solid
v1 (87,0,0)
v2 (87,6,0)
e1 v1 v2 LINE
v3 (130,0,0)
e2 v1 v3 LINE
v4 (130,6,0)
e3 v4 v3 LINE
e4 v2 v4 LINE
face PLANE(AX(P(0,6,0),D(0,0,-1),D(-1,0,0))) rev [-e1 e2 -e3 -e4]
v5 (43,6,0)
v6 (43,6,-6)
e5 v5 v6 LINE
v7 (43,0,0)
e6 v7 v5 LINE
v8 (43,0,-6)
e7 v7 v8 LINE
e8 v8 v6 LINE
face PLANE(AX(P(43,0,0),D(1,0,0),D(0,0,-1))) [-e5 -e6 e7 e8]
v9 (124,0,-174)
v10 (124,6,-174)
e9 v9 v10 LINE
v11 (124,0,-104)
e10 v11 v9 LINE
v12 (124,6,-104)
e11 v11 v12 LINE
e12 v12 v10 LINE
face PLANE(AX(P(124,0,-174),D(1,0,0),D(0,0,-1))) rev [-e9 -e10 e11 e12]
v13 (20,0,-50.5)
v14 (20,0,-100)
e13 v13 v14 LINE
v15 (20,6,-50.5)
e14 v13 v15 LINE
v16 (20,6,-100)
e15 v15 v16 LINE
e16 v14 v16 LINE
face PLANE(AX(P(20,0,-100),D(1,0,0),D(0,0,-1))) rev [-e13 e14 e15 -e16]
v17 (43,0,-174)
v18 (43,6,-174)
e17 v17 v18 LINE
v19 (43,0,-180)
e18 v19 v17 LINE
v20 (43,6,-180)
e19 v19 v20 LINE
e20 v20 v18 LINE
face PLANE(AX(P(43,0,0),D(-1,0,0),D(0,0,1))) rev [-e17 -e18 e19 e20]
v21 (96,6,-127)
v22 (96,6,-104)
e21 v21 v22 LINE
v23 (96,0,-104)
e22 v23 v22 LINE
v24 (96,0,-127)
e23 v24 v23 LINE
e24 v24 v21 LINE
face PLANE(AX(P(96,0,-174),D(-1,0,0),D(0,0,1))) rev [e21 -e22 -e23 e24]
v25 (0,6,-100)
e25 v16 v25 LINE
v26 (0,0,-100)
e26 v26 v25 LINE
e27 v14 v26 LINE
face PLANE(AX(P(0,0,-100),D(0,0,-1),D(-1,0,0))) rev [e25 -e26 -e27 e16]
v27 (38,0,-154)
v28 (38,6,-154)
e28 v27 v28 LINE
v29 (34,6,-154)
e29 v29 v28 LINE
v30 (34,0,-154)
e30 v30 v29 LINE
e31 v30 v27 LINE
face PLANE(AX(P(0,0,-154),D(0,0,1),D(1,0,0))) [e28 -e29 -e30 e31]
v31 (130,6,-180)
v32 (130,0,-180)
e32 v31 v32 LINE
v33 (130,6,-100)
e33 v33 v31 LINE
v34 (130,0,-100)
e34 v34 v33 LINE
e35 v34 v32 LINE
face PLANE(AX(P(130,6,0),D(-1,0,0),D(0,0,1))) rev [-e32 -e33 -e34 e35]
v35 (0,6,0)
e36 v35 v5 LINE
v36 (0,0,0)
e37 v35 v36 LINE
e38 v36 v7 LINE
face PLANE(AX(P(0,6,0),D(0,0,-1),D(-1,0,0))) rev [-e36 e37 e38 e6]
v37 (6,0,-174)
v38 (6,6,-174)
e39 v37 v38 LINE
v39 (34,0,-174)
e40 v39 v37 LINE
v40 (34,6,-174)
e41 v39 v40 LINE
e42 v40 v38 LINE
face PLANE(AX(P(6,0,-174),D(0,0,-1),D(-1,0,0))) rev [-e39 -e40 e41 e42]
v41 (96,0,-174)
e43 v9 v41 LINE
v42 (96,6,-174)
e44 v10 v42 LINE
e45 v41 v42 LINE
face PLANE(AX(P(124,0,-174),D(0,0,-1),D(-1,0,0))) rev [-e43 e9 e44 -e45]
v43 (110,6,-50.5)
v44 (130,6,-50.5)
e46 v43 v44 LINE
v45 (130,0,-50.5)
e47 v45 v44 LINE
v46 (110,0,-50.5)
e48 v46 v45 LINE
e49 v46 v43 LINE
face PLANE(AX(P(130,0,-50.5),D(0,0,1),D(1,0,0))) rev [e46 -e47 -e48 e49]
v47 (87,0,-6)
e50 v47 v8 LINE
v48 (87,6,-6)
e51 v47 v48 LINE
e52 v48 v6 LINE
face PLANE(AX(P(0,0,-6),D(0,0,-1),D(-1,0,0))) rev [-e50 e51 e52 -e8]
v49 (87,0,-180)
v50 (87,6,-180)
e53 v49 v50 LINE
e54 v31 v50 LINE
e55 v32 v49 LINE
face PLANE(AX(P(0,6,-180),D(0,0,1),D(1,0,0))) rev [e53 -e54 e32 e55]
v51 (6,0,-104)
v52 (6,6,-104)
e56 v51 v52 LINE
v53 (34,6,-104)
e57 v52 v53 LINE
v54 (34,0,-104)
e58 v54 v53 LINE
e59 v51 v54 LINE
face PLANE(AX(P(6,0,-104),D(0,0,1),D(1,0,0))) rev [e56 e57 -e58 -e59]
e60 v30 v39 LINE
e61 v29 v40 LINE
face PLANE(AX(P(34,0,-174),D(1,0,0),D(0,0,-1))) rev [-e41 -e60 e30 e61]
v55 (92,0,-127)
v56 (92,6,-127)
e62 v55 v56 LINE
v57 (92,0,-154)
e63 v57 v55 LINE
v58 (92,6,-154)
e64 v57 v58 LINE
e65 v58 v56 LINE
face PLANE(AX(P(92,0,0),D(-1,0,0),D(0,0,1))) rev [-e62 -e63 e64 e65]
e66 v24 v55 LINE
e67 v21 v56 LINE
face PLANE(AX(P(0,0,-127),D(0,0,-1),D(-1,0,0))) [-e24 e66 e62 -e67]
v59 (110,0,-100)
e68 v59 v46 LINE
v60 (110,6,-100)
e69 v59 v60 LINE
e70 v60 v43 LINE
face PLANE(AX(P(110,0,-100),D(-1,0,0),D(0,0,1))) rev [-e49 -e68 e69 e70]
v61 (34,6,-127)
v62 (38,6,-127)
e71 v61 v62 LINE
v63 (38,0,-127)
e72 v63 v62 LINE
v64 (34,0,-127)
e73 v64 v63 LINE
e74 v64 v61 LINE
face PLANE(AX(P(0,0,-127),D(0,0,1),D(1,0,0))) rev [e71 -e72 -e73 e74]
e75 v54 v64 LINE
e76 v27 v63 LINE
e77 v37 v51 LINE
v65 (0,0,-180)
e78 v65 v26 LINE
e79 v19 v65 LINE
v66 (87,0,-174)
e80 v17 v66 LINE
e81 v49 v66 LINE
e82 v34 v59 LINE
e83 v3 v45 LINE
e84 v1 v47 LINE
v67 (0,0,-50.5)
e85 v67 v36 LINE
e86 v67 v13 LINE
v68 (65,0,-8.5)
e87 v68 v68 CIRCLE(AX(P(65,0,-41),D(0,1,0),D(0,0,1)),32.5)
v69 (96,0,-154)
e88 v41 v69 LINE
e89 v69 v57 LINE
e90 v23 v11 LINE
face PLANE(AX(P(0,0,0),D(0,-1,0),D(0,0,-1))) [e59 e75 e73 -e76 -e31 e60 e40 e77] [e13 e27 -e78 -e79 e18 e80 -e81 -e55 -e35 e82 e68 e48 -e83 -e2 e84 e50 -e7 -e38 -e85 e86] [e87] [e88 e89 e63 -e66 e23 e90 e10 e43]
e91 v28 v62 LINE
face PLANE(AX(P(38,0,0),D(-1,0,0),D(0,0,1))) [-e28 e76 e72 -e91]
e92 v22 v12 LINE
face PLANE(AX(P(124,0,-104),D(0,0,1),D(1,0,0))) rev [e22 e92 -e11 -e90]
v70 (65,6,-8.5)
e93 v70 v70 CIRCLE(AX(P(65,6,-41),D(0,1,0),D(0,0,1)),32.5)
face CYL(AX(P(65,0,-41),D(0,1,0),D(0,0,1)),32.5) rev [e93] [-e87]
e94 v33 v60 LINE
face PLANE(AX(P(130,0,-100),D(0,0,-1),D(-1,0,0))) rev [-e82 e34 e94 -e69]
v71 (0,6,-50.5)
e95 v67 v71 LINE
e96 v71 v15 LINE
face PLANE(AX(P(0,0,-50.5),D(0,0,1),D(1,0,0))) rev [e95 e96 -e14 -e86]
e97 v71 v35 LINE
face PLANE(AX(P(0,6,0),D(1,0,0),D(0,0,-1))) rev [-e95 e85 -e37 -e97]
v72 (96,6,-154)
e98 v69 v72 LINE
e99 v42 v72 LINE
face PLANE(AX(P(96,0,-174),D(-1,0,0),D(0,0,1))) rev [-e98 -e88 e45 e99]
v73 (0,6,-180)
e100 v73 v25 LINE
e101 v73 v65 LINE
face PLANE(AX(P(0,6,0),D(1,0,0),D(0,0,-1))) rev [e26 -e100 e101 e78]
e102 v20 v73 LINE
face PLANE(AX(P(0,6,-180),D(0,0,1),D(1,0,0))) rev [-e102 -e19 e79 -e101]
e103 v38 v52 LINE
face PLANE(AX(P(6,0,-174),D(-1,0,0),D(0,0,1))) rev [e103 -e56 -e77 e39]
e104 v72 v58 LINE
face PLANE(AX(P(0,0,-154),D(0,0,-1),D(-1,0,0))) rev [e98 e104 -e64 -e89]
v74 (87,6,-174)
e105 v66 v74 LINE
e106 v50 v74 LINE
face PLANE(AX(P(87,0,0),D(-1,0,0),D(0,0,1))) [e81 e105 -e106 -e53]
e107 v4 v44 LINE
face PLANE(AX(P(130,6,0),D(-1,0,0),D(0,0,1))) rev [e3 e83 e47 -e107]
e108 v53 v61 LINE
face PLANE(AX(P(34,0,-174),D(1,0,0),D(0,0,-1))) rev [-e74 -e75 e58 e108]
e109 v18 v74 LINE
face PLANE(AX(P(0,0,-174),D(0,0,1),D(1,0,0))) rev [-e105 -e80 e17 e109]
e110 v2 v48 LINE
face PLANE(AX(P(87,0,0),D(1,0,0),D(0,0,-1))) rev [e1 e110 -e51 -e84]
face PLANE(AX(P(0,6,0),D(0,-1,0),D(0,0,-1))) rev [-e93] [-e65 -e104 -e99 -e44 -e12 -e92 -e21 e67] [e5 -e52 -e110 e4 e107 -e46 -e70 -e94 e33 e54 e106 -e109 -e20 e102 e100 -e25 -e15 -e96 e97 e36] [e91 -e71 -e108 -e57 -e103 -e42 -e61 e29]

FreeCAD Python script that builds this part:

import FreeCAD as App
import Part
import Sketcher

V = App.Vector
Q = App.Units.Quantity

doc = App.newDocument("Part")
params = doc.addObject("Spreadsheet::Sheet", "Params")
for row, (alias, value) in enumerate([
    ("sketch1_width", "130 mm"),
    ("sketch1_height", "180 mm"),
    ("pad1_length", "6 mm"),
    ("sketch2_diameter", "65 mm"),
    ("sketch2_width", "28 mm"),
    ("sketch2_height", "70 mm"),
    ("pocket1_length", "6 mm"),
    ("sketch3_width", "20 mm"),
    ("sketch3_height", "49.5 mm"),
    ("sketch4_width", "44 mm"),
    ("sketch4_width2", "4 mm"),
    ("sketch4_height", "6 mm"),
    ("sketch4_height2", "27 mm"),
], start=1):
    params.set(f"A{row}", alias)
    params.set(f"B{row}", "=" + value)
    params.setAlias(f"B{row}", alias)

body = doc.addObject("PartDesign::Body", "Body")

sketch1 = doc.addObject("Sketcher::SketchObject", "Sketch")
body.addObject(sketch1)
sketch1.AttachmentSupport = (doc.XZ_Plane, [""])
sketch1.MapMode = "FlatFace"
sketch1.addGeometry([
    Part.LineSegment(V(0, -180, 0), V(0, 0, 0)),
    Part.LineSegment(V(0, 0, 0), V(130, 0, 0)),
    Part.LineSegment(V(130, 0, 0), V(130, -180, 0)),
    Part.LineSegment(V(130, -180, 0), V(0, -180, 0)),
], False)
sketch1.addConstraint([
    Sketcher.Constraint("Coincident", 0, 2, 1, 1),
    Sketcher.Constraint("Coincident", 1, 2, 2, 1),
    Sketcher.Constraint("Coincident", 2, 2, 3, 1),
    Sketcher.Constraint("Coincident", 3, 2, 0, 1),
    Sketcher.Constraint("Vertical", 0),
    Sketcher.Constraint("Horizontal", 1),
    Sketcher.Constraint("Vertical", 2),
    Sketcher.Constraint("Horizontal", 3),
    Sketcher.Constraint("Coincident", 0, 2, -1, 1),
    Sketcher.Constraint("DistanceX", 1, 1, 1, 2, Q("130 mm")),
    Sketcher.Constraint("DistanceY", 0, 1, 0, 2, Q("180 mm")),
])
sketch1.setExpression("Constraints[9]", "Params.sketch1_width")
sketch1.setExpression("Constraints[10]", "Params.sketch1_height")
pad1 = doc.addObject("PartDesign::Pad", "Pad")
body.addObject(pad1)
pad1.Profile = sketch1
pad1.setExpression("Length", "Params.pad1_length")
pad1.Reversed = True

sketch2 = doc.addObject("Sketcher::SketchObject", "Sketch001")
body.addObject(sketch2)
sketch2.AttachmentSupport = (doc.XZ_Plane, [""])
sketch2.MapMode = "FlatFace"
sketch2.AttachmentOffset = App.Placement(V(0, 0, -6), App.Rotation())
sketch2.addGeometry([
    Part.Circle(V(65, -41, 0), V(0, 0, 1), 32.5),
    Part.LineSegment(V(6, -174, 0), V(6, -104, 0)),
    Part.LineSegment(V(6, -104, 0), V(34, -104, 0)),
    Part.LineSegment(V(34, -104, 0), V(34, -174, 0)),
    Part.LineSegment(V(34, -174, 0), V(6, -174, 0)),
    Part.LineSegment(V(96, -174, 0), V(96, -104, 0)),
    Part.LineSegment(V(96, -104, 0), V(124, -104, 0)),
    Part.LineSegment(V(124, -104, 0), V(124, -174, 0)),
    Part.LineSegment(V(124, -174, 0), V(96, -174, 0)),
], False)
sketch2.addConstraint([
    Sketcher.Constraint("Coincident", 1, 2, 2, 1),
    Sketcher.Constraint("Coincident", 2, 2, 3, 1),
    Sketcher.Constraint("Coincident", 3, 2, 4, 1),
    Sketcher.Constraint("Coincident", 4, 2, 1, 1),
    Sketcher.Constraint("Coincident", 5, 2, 6, 1),
    Sketcher.Constraint("Coincident", 6, 2, 7, 1),
    Sketcher.Constraint("Coincident", 7, 2, 8, 1),
    Sketcher.Constraint("Coincident", 8, 2, 5, 1),
    Sketcher.Constraint("Vertical", 1),
    Sketcher.Constraint("Horizontal", 2),
    Sketcher.Constraint("Vertical", 3),
    Sketcher.Constraint("Horizontal", 4),
    Sketcher.Constraint("Vertical", 5),
    Sketcher.Constraint("Horizontal", 6),
    Sketcher.Constraint("Vertical", 7),
    Sketcher.Constraint("Horizontal", 8),
    Sketcher.Constraint("Horizontal", 2, 2, 5, 2),
    Sketcher.Constraint("Horizontal", 4, 2, 7, 2),
    Sketcher.Constraint("Equal", 4, 6),
    Sketcher.Constraint("Diameter", 0, Q("65 mm")),
    Sketcher.Constraint("DistanceX", 2, 1, 2, 2, Q("28 mm")),
    Sketcher.Constraint("DistanceY", 1, 1, 1, 2, Q("70 mm")),
    Sketcher.Constraint("DistanceX", -1, 1, 0, 3, Q("65 mm")),
    Sketcher.Constraint("DistanceY", 0, 3, -1, 1, Q("41 mm")),
    Sketcher.Constraint("DistanceX", -1, 1, 1, 2, Q("6 mm")),
    Sketcher.Constraint("DistanceY", 1, 2, -1, 1, Q("104 mm")),
    Sketcher.Constraint("DistanceX", -1, 1, 5, 2, Q("96 mm")),
])
sketch2.setExpression("Constraints[19]", "Params.sketch2_diameter")
sketch2.setExpression("Constraints[20]", "Params.sketch2_width")
sketch2.setExpression("Constraints[21]", "Params.sketch2_height")
pocket1 = doc.addObject("PartDesign::Pocket", "Pocket")
body.addObject(pocket1)
pocket1.Profile = sketch2
pocket1.setExpression("Length", "Params.pocket1_length")
pocket1.Reversed = True

sketch3 = doc.addObject("Sketcher::SketchObject", "Sketch002")
body.addObject(sketch3)
sketch3.AttachmentSupport = (doc.XZ_Plane, [""])
sketch3.MapMode = "FlatFace"
sketch3.AttachmentOffset = App.Placement(V(0, 0, -6), App.Rotation())
sketch3.addGeometry([
    Part.LineSegment(V(110, -100, 0), V(110, -50.5, 0)),
    Part.LineSegment(V(110, -50.5, 0), V(130, -50.5, 0)),
    Part.LineSegment(V(130, -50.5, 0), V(130, -100, 0)),
    Part.LineSegment(V(130, -100, 0), V(110, -100, 0)),
    Part.LineSegment(V(0, -100, 0), V(0, -50.5, 0)),
    Part.LineSegment(V(0, -50.5, 0), V(20, -50.5, 0)),
    Part.LineSegment(V(20, -50.5, 0), V(20, -100, 0)),
    Part.LineSegment(V(20, -100, 0), V(0, -100, 0)),
], False)
sketch3.addConstraint([
    Sketcher.Constraint("Coincident", 0, 2, 1, 1),
    Sketcher.Constraint("Coincident", 1, 2, 2, 1),
    Sketcher.Constraint("Coincident", 2, 2, 3, 1),
    Sketcher.Constraint("Coincident", 3, 2, 0, 1),
    Sketcher.Constraint("Coincident", 4, 2, 5, 1),
    Sketcher.Constraint("Coincident", 5, 2, 6, 1),
    Sketcher.Constraint("Coincident", 6, 2, 7, 1),
    Sketcher.Constraint("Coincident", 7, 2, 4, 1),
    Sketcher.Constraint("Vertical", 0),
    Sketcher.Constraint("Horizontal", 1),
    Sketcher.Constraint("Vertical", 2),
    Sketcher.Constraint("Horizontal", 3),
    Sketcher.Constraint("Vertical", 4),
    Sketcher.Constraint("Horizontal", 5),
    Sketcher.Constraint("Vertical", 6),
    Sketcher.Constraint("Horizontal", 7),
    Sketcher.Constraint("PointOnObject", 4, 2, -2),
    Sketcher.Constraint("Horizontal", 1, 2, 4, 2),
    Sketcher.Constraint("Horizontal", 3, 2, 6, 2),
    Sketcher.Constraint("Equal", 3, 5),
    Sketcher.Constraint("DistanceX", 1, 1, 1, 2, Q("20 mm")),
    Sketcher.Constraint("DistanceY", 0, 1, 0, 2, Q("49.5 mm")),
    Sketcher.Constraint("DistanceX", -1, 1, 0, 2, Q("110 mm")),
    Sketcher.Constraint("DistanceY", 2, 2, -1, 1, Q("100 mm")),
])
sketch3.setExpression("Constraints[20]", "Params.sketch3_width")
sketch3.setExpression("Constraints[21]", "Params.sketch3_height")
pocket2 = doc.addObject("PartDesign::Pocket", "Pocket001")
body.addObject(pocket2)
pocket2.Profile = sketch3
pocket2.Type = "ThroughAll"
pocket2.Reversed = True

sketch4 = doc.addObject("Sketcher::SketchObject", "Sketch003")
body.addObject(sketch4)
sketch4.AttachmentSupport = (doc.XZ_Plane, [""])
sketch4.MapMode = "FlatFace"
sketch4.AttachmentOffset = App.Placement(V(0, 0, -6), App.Rotation())
sketch4.addGeometry([
    Part.LineSegment(V(43, -180, 0), V(43, -174, 0)),
    Part.LineSegment(V(43, -174, 0), V(87, -174, 0)),
    Part.LineSegment(V(87, -174, 0), V(87, -180, 0)),
    Part.LineSegment(V(87, -180, 0), V(43, -180, 0)),
    Part.LineSegment(V(34, -154, 0), V(34, -127, 0)),
    Part.LineSegment(V(34, -127, 0), V(38, -127, 0)),
    Part.LineSegment(V(38, -127, 0), V(38, -154, 0)),
    Part.LineSegment(V(38, -154, 0), V(34, -154, 0)),
    Part.LineSegment(V(92, -154, 0), V(92, -127, 0)),
    Part.LineSegment(V(92, -127, 0), V(96, -127, 0)),
    Part.LineSegment(V(96, -127, 0), V(96, -154, 0)),
    Part.LineSegment(V(96, -154, 0), V(92, -154, 0)),
    Part.LineSegment(V(43, -6, 0), V(43, 0, 0)),
    Part.LineSegment(V(43, 0, 0), V(87, 0, 0)),
    Part.LineSegment(V(87, 0, 0), V(87, -6, 0)),
    Part.LineSegment(V(87, -6, 0), V(43, -6, 0)),
], False)
sketch4.addConstraint([
    Sketcher.Constraint("Coincident", 0, 2, 1, 1),
    Sketcher.Constraint("Coincident", 1, 2, 2, 1),
    Sketcher.Constraint("Coincident", 2, 2, 3, 1),
    Sketcher.Constraint("Coincident", 3, 2, 0, 1),
    Sketcher.Constraint("Coincident", 4, 2, 5, 1),
    Sketcher.Constraint("Coincident", 5, 2, 6, 1),
    Sketcher.Constraint("Coincident", 6, 2, 7, 1),
    Sketcher.Constraint("Coincident", 7, 2, 4, 1),
    Sketcher.Constraint("Coincident", 8, 2, 9, 1),
    Sketcher.Constraint("Coincident", 9, 2, 10, 1),
    Sketcher.Constraint("Coincident", 10, 2, 11, 1),
    Sketcher.Constraint("Coincident", 11, 2, 8, 1),
    Sketcher.Constraint("Coincident", 12, 2, 13, 1),
    Sketcher.Constraint("Coincident", 13, 2, 14, 1),
    Sketcher.Constraint("Coincident", 14, 2, 15, 1),
    Sketcher.Constraint("Coincident", 15, 2, 12, 1),
    Sketcher.Constraint("Vertical", 0),
    Sketcher.Constraint("Horizontal", 1),
    Sketcher.Constraint("Vertical", 2),
    Sketcher.Constraint("Horizontal", 3),
    Sketcher.Constraint("Vertical", 4),
    Sketcher.Constraint("Horizontal", 5),
    Sketcher.Constraint("Vertical", 6),
    Sketcher.Constraint("Horizontal", 7),
    Sketcher.Constraint("Vertical", 8),
    Sketcher.Constraint("Horizontal", 9),
    Sketcher.Constraint("Vertical", 10),
    Sketcher.Constraint("Horizontal", 11),
    Sketcher.Constraint("Vertical", 12),
    Sketcher.Constraint("Horizontal", 13),
    Sketcher.Constraint("Vertical", 14),
    Sketcher.Constraint("Horizontal", 15),
    Sketcher.Constraint("PointOnObject", 12, 2, -1),
    Sketcher.Constraint("Horizontal", 5, 2, 8, 2),
    Sketcher.Constraint("Horizontal", 7, 2, 10, 2),
    Sketcher.Constraint("Vertical", 3, 2, 12, 2),
    Sketcher.Constraint("Vertical", 2, 2, 13, 2),
    Sketcher.Constraint("Equal", 7, 9),
    Sketcher.Constraint("Equal", 2, 12),
    Sketcher.Constraint("DistanceX", 1, 1, 1, 2, Q("44 mm")),
    Sketcher.Constraint("DistanceX", 5, 1, 5, 2, Q("4 mm")),
    Sketcher.Constraint("DistanceY", 0, 1, 0, 2, Q("6 mm")),
    Sketcher.Constraint("DistanceY", 4, 1, 4, 2, Q("27 mm")),
    Sketcher.Constraint("DistanceX", -1, 1, 0, 2, Q("43 mm")),
    Sketcher.Constraint("DistanceY", 0, 2, -1, 1, Q("174 mm")),
    Sketcher.Constraint("DistanceX", -1, 1, 4, 2, Q("34 mm")),
    Sketcher.Constraint("DistanceY", 4, 2, -1, 1, Q("127 mm")),
    Sketcher.Constraint("DistanceX", -1, 1, 8, 2, Q("92 mm")),
])
sketch4.setExpression("Constraints[39]", "Params.sketch4_width")
sketch4.setExpression("Constraints[40]", "Params.sketch4_width2")
sketch4.setExpression("Constraints[41]", "Params.sketch4_height")
sketch4.setExpression("Constraints[42]", "Params.sketch4_height2")
pocket3 = doc.addObject("PartDesign::Pocket", "Pocket002")
body.addObject(pocket3)
pocket3.Profile = sketch4
pocket3.Type = "ThroughAll"
pocket3.Reversed = True

doc.recompute()
